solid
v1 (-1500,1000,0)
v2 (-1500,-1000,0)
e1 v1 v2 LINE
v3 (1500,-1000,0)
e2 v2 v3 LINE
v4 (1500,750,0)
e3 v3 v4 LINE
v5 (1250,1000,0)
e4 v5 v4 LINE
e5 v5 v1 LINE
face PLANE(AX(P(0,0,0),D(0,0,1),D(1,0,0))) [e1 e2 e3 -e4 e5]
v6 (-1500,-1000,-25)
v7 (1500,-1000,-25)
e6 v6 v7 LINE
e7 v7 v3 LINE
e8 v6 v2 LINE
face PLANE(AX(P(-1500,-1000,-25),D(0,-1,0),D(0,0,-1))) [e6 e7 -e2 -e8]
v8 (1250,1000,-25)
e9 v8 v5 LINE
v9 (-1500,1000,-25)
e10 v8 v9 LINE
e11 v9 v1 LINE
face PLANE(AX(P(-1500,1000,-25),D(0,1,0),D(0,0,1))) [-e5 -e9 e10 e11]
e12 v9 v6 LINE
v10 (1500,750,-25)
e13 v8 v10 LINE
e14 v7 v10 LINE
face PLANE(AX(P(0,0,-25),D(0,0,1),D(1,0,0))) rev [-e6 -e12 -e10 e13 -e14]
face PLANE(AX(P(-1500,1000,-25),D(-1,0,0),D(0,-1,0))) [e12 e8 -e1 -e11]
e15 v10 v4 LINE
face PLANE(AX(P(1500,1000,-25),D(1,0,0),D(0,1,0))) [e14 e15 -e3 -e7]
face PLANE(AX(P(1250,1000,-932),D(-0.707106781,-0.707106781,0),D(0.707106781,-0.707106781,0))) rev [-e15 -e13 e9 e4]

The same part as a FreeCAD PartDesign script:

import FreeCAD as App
import Part
import Sketcher

V = App.Vector
Q = App.Units.Quantity


def add_polygon(sketch, points):
    """Adds a closed chain of lines whose ends are joined by coincident constraints."""
    first, n = sketch.GeometryCount, len(points)
    for a, b in zip(points, points[1:] + points[:1]):
        sketch.addGeometry(Part.LineSegment(App.Vector(*a, 0), App.Vector(*b, 0)), False)
    for i in range(n):
        sketch.addConstraint(Sketcher.Constraint("Coincident", first + i, 2, first + (i + 1) % n, 1))

doc = App.newDocument("Part")
body = doc.addObject("PartDesign::Body", "Body")

# Sketch on XY plane
sketch1 = body.newObject("Sketcher::SketchObject", "Sketch")
sketch1.AttachmentSupport = (doc.getObject("XY_Plane"), [""])
sketch1.MapMode = "FlatFace"
add_polygon(sketch1, [(-1500, 1000), (-1500, -1000), (1500, -1000), (1500, 1000)])  # lines 0-3
sketch1.addConstraint([
    Sketcher.Constraint("Vertical", 0),
    Sketcher.Constraint("Horizontal", 1),
    Sketcher.Constraint("Vertical", 2),
    Sketcher.Constraint("Horizontal", 3),
    Sketcher.Constraint("Symmetric", 0, 2, 2, 2, -1, 1),
    Sketcher.Constraint("DistanceX", 1, 1, 1, 2, Q("3000 mm")),
    Sketcher.Constraint("DistanceY", 0, 2, 0, 1, Q("2000 mm")),
])
pad1 = body.newObject("PartDesign::Pad", "Pad")
pad1.Profile = sketch1
pad1.Length = 25
pad1.Reversed = True

# Sketch on XY plane
sketch2 = body.newObject("Sketcher::SketchObject", "Sketch001")
sketch2.AttachmentSupport = (doc.getObject("XY_Plane"), [""])
sketch2.MapMode = "FlatFace"
add_polygon(sketch2, [(1500, 750), (1500, 1000), (1250, 1000)])  # lines 0-2
sketch2.addConstraint([
    Sketcher.Constraint("Vertical", 0),
    Sketcher.Constraint("Horizontal", 1),
    Sketcher.Constraint("Equal", 1, 0),
    Sketcher.Constraint("DistanceX", 1, 2, 1, 1, Q("250 mm")),
    Sketcher.Constraint("DistanceX", -1, 1, 0, 2, Q("1500 mm")),
    Sketcher.Constraint("DistanceY", -1, 1, 0, 2, Q("1000 mm")),
])
pocket1 = body.newObject("PartDesign::Pocket", "Pocket")
pocket1.Profile = sketch2
pocket1.Length = 932

doc.recompute()
